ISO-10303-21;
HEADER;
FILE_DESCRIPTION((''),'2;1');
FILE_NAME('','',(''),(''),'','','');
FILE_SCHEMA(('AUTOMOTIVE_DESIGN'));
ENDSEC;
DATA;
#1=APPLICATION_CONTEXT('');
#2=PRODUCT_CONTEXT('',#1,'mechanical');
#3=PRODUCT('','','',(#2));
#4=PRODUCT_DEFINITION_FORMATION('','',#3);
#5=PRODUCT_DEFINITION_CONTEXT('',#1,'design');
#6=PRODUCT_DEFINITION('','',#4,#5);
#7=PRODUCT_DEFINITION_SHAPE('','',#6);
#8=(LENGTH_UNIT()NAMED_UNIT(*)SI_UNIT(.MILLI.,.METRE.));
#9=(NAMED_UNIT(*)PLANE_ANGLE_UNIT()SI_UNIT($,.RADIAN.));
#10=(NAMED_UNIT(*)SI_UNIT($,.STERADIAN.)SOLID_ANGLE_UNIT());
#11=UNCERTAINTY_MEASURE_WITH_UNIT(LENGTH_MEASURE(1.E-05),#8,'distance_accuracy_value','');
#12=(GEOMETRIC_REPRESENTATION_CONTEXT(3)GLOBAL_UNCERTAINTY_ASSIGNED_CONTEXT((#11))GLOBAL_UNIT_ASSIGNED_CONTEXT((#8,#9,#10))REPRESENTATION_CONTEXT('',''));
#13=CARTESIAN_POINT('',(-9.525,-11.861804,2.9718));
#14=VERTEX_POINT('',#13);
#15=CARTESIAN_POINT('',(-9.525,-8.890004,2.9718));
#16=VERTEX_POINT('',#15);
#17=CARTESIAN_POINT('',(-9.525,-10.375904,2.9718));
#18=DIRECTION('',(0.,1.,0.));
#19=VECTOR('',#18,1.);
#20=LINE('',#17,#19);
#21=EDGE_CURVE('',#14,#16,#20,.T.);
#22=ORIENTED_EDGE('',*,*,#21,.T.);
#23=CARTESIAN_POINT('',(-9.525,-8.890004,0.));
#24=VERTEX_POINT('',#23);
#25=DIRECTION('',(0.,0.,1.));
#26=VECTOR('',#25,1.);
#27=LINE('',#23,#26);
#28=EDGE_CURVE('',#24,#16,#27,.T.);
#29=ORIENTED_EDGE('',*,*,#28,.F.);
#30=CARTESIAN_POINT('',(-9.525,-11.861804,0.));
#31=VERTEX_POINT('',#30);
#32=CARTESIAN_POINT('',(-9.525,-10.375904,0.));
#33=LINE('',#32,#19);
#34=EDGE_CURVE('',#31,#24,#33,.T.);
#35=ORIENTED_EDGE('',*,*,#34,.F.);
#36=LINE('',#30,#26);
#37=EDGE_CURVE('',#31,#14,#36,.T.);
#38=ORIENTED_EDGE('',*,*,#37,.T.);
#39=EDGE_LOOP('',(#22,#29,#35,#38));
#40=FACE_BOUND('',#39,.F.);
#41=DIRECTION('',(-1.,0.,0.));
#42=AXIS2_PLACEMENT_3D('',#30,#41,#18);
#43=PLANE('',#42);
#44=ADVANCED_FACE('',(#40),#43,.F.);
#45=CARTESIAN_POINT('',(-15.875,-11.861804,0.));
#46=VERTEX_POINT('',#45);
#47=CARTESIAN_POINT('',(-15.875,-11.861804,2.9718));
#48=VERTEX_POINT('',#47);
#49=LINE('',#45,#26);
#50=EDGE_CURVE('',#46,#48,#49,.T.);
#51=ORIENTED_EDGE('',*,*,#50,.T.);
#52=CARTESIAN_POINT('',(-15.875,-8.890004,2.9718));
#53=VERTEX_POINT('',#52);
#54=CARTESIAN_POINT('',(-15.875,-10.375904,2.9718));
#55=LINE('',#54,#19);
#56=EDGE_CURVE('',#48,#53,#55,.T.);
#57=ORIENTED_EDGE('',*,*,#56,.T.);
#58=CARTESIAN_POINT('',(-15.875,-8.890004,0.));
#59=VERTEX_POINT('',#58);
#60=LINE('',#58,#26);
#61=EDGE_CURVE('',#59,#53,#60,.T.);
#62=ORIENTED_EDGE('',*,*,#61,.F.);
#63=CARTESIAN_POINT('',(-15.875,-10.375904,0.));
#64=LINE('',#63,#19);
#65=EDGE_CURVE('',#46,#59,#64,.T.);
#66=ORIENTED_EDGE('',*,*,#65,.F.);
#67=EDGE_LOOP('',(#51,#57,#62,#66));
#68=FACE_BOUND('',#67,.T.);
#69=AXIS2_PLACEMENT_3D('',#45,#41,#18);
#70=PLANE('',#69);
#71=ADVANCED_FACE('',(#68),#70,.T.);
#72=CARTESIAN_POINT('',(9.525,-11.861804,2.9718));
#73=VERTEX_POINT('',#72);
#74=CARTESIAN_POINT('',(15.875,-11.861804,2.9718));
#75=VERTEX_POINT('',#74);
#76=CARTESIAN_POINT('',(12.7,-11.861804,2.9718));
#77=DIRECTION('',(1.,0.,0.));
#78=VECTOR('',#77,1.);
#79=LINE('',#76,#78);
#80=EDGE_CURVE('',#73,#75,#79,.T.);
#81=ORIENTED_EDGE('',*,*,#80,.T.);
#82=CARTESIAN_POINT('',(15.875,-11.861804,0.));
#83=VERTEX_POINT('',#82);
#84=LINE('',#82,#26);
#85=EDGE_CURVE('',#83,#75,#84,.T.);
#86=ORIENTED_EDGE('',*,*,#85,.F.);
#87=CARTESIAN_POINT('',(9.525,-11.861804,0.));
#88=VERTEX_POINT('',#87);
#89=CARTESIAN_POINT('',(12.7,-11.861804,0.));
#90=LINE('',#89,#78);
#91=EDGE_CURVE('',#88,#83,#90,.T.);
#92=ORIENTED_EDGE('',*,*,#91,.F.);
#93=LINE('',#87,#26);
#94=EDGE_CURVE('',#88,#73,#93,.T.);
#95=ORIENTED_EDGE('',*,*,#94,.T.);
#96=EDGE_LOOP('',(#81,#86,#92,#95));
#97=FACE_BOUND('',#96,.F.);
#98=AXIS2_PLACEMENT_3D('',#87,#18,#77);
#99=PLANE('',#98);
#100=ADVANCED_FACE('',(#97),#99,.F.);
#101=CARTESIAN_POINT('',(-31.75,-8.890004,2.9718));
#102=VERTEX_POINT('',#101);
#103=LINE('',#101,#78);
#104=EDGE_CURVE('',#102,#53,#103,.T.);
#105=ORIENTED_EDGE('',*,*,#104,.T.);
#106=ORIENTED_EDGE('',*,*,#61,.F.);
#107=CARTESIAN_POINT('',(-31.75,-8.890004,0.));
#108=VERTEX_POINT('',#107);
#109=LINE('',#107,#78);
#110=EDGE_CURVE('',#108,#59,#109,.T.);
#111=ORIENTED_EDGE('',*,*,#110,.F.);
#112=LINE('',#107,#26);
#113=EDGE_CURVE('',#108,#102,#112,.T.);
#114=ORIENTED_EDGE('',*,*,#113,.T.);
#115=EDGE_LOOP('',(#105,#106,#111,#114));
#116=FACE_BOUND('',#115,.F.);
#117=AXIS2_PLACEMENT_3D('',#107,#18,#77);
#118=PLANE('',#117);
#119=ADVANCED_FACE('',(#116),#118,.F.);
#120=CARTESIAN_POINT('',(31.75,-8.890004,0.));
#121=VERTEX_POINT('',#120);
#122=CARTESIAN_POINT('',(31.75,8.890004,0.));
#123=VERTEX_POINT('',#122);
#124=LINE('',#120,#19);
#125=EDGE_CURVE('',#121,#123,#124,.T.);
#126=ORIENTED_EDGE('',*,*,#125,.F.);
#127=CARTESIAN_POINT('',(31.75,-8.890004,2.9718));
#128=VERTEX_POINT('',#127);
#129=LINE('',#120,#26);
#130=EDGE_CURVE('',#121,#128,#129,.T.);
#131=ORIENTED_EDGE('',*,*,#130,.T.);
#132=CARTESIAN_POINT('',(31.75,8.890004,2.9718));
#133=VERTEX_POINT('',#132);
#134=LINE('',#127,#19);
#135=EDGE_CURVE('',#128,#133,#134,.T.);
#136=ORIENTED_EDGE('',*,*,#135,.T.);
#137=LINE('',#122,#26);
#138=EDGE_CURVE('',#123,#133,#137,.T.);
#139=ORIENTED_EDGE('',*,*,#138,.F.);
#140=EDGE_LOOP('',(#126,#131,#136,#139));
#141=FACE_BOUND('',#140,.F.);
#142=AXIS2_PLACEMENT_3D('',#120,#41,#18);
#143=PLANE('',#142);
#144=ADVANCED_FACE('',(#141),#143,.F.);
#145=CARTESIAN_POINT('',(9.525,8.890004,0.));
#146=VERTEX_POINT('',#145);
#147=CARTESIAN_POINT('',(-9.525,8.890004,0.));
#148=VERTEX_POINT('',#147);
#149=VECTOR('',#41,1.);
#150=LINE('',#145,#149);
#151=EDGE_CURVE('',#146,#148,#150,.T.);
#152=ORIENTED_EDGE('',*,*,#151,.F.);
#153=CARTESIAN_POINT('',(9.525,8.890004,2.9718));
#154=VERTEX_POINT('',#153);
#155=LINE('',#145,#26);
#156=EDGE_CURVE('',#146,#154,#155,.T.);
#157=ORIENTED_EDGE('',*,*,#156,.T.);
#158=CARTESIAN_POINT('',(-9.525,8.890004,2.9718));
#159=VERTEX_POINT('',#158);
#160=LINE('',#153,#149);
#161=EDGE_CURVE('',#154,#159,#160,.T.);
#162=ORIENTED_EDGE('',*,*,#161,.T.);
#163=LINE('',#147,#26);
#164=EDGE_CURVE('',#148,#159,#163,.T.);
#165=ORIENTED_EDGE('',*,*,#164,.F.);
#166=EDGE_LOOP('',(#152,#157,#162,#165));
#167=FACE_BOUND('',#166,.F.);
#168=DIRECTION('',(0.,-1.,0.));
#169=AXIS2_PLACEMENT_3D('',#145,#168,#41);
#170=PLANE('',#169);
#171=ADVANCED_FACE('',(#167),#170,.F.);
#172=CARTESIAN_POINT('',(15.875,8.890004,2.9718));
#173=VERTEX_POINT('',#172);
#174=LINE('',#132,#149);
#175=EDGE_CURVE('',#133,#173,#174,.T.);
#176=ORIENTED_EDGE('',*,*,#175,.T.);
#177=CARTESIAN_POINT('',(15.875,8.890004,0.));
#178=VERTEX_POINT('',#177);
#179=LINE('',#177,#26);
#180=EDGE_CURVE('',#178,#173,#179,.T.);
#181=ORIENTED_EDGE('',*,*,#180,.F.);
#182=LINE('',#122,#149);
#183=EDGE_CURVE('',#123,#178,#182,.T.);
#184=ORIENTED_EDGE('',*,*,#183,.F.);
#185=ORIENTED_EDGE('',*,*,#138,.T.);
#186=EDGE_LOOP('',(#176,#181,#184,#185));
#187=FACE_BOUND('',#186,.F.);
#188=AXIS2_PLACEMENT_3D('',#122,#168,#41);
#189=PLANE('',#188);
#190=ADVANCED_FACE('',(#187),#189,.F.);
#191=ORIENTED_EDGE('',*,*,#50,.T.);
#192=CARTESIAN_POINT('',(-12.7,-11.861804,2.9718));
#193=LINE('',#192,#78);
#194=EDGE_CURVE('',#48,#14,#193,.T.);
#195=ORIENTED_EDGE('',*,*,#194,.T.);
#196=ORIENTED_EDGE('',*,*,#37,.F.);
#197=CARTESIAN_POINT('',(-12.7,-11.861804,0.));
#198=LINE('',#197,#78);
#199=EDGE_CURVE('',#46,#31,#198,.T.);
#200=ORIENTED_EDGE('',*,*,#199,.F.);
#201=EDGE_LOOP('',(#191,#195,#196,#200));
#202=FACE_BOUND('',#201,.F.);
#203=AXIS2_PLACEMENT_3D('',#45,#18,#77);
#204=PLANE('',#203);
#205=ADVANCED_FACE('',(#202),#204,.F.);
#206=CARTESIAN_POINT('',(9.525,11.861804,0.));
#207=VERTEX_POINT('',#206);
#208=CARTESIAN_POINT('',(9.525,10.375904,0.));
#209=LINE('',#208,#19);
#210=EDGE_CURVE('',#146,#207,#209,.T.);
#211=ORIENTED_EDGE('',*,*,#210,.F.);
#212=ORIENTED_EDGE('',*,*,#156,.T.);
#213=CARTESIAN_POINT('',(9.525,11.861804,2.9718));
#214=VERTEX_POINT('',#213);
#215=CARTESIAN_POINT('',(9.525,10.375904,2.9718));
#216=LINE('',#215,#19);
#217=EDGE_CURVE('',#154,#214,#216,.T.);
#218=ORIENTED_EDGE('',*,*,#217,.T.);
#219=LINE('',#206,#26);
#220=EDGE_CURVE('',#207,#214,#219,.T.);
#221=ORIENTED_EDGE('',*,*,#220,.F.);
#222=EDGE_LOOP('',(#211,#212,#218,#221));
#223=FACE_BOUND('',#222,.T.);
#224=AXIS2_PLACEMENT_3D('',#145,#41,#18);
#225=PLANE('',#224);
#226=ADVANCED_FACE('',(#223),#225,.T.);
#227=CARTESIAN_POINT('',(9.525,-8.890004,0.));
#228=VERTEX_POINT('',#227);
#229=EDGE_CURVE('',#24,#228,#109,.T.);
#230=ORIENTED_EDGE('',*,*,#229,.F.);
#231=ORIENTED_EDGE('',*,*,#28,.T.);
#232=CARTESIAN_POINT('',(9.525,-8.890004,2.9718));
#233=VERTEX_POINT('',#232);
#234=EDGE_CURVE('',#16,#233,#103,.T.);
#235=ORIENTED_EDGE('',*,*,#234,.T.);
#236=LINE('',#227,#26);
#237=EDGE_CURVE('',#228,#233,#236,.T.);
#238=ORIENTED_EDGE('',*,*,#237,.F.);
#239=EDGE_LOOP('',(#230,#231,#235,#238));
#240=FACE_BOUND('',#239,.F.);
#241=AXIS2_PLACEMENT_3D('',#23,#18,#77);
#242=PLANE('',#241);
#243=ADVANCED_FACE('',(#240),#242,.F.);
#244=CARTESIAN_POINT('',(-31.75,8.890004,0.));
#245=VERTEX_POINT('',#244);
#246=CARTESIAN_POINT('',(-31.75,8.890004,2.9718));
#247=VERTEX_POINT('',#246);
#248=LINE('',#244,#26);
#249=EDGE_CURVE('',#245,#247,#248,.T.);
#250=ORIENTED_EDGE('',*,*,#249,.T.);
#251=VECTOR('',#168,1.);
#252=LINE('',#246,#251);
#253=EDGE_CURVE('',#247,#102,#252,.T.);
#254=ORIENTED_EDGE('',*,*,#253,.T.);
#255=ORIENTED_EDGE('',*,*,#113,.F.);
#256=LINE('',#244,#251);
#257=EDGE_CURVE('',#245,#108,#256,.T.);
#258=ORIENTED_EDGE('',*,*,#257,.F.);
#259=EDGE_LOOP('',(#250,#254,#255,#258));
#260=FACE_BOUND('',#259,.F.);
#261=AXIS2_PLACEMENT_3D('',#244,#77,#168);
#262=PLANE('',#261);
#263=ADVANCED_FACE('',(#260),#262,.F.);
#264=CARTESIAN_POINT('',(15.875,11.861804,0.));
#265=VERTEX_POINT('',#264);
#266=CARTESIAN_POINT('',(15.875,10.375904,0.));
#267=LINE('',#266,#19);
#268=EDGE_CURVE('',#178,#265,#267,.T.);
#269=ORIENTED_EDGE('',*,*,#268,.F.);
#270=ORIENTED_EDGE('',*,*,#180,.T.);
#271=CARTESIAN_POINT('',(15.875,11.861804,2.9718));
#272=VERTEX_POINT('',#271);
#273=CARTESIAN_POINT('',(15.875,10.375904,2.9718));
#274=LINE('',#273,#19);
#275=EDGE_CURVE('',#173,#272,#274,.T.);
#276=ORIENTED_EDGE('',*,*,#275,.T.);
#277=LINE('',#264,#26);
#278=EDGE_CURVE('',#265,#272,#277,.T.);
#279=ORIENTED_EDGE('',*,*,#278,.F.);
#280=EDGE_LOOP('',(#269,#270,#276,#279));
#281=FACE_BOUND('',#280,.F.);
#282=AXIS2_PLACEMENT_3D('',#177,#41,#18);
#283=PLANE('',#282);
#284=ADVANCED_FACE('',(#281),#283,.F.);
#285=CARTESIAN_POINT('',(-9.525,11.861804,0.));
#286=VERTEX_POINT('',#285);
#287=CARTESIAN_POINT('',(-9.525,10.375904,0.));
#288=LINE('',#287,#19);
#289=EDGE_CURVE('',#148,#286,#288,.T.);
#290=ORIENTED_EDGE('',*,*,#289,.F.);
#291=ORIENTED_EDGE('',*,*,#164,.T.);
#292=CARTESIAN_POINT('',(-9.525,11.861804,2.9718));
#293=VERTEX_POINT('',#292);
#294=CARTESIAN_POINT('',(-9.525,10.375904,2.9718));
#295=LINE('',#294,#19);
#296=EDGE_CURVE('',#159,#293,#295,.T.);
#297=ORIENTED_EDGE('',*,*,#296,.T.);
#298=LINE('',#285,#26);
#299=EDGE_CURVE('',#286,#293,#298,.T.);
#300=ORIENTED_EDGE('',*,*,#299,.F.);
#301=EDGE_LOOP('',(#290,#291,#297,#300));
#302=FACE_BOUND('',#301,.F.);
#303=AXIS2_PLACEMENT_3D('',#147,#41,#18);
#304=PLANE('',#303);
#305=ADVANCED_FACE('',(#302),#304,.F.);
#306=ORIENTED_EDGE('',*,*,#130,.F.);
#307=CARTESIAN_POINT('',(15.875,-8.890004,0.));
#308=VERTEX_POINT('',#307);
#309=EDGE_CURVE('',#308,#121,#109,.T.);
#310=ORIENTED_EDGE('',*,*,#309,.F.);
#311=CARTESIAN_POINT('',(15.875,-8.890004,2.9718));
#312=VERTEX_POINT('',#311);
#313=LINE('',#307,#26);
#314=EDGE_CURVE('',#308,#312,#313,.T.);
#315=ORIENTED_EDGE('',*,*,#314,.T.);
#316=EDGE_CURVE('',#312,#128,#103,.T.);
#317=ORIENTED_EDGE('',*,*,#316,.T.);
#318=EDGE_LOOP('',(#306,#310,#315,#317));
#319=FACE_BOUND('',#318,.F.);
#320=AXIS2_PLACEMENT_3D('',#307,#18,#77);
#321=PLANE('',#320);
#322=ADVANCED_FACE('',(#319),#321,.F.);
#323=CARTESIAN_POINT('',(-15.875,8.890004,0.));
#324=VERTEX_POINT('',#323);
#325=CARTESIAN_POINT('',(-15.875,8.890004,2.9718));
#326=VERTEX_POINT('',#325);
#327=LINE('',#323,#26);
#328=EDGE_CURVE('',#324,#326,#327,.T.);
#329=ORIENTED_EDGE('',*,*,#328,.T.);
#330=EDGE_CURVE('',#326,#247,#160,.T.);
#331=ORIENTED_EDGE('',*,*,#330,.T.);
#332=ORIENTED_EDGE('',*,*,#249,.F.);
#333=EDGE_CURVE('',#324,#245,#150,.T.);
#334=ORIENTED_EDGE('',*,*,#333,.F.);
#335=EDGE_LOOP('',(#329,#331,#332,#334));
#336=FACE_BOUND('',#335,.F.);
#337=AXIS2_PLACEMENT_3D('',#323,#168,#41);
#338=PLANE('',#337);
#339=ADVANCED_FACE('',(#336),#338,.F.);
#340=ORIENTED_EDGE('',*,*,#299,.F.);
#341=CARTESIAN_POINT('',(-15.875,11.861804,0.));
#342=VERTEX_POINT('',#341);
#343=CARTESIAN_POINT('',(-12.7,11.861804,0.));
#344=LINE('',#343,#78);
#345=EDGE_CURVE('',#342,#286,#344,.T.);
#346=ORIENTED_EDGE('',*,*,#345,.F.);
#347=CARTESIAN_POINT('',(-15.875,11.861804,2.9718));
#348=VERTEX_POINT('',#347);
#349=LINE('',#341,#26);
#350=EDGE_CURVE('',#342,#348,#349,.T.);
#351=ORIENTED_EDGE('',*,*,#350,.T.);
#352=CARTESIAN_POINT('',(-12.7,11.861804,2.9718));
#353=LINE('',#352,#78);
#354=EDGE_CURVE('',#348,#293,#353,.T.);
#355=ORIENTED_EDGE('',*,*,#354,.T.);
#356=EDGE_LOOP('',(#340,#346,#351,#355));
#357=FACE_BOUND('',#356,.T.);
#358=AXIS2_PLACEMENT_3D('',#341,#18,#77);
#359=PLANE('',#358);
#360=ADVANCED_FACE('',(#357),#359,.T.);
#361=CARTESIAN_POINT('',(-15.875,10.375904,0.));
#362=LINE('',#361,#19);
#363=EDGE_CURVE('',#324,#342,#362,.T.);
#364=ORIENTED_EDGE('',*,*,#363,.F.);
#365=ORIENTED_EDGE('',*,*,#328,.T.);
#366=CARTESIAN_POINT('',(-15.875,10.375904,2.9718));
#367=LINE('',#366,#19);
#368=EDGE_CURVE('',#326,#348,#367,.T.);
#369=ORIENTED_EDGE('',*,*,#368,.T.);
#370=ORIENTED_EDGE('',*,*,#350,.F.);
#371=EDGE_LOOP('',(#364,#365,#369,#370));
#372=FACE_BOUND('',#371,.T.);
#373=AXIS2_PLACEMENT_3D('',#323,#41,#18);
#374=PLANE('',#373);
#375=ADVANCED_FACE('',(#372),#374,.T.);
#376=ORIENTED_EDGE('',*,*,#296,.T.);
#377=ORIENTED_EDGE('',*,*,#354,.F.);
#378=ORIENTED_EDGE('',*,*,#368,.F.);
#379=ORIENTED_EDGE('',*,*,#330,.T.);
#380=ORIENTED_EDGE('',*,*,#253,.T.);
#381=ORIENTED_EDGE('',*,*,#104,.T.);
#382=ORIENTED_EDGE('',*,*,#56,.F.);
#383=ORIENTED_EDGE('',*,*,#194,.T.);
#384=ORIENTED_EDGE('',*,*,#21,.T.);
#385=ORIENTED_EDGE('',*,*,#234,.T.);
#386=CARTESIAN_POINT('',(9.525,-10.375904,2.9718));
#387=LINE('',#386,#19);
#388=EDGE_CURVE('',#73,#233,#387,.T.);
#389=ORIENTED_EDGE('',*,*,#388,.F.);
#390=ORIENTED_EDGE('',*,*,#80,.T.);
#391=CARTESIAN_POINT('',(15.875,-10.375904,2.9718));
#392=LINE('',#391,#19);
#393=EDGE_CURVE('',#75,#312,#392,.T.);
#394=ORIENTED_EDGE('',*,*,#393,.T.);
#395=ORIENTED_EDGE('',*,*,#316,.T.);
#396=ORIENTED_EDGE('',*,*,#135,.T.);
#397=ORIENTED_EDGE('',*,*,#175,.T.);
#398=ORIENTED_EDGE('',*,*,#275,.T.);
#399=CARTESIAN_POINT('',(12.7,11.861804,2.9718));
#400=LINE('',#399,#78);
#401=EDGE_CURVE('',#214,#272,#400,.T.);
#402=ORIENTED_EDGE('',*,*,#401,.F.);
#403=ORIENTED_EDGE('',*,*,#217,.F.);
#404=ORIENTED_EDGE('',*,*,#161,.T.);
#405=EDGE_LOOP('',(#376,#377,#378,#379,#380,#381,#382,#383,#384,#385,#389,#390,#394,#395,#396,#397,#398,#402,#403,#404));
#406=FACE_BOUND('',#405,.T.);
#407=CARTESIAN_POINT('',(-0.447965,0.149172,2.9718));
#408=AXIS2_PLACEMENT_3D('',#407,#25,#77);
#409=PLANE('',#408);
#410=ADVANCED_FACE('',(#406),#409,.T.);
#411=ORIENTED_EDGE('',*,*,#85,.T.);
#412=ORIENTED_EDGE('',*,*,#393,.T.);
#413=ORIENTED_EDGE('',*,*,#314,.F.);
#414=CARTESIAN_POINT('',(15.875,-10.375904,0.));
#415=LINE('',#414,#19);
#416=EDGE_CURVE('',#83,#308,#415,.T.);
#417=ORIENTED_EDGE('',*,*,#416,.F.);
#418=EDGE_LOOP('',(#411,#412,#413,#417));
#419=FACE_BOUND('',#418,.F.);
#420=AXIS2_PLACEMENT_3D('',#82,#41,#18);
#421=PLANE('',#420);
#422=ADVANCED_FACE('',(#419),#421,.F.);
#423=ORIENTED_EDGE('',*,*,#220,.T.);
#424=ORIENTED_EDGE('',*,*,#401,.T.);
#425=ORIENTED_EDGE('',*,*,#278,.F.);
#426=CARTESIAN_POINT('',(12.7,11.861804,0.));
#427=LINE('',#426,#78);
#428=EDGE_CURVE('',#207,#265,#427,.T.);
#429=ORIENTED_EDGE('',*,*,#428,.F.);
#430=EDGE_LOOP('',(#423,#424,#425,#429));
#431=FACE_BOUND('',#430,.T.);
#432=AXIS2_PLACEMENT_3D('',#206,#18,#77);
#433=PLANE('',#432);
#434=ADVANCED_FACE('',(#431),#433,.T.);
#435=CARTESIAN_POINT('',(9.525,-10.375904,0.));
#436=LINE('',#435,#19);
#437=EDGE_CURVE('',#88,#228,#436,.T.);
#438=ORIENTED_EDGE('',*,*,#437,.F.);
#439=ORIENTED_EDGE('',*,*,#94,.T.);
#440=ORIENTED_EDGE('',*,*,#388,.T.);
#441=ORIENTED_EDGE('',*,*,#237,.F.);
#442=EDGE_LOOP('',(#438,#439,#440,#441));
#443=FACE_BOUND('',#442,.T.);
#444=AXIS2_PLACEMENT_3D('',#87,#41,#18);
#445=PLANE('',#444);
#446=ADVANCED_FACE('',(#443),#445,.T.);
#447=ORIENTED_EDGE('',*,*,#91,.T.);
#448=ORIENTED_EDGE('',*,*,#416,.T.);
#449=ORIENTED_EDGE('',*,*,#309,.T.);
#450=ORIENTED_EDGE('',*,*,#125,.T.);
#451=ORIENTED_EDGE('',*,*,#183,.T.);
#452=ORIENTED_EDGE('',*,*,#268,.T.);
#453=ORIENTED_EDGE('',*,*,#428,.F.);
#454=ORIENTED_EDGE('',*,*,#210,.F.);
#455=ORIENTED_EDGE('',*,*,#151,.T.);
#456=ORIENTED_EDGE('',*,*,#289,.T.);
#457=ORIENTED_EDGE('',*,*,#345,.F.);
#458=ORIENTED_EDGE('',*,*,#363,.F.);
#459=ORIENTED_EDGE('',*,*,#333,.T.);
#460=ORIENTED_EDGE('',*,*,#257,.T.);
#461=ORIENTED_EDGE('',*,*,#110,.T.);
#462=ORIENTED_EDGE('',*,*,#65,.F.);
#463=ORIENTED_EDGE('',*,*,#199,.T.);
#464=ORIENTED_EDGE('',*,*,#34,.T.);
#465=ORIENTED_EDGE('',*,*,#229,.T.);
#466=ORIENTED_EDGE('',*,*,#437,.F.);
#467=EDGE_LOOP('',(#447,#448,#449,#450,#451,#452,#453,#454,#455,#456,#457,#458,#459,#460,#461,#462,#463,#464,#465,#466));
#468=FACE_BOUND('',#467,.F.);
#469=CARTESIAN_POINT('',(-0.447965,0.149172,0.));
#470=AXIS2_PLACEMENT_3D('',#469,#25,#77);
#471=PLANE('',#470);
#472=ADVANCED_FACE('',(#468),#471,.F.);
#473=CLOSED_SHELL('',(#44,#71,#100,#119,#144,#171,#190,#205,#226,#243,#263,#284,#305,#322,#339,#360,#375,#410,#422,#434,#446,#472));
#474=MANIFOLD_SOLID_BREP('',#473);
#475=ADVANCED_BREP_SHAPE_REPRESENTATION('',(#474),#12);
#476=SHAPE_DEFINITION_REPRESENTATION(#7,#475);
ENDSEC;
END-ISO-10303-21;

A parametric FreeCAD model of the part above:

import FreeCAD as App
import Part
import Sketcher

V = App.Vector
Q = App.Units.Quantity


def add_polygon(sketch, points):
    """Adds a closed chain of lines whose ends are joined by coincident constraints."""
    first, n = sketch.GeometryCount, len(points)
    for a, b in zip(points, points[1:] + points[:1]):
        sketch.addGeometry(Part.LineSegment(App.Vector(*a, 0), App.Vector(*b, 0)), False)
    for i in range(n):
        sketch.addConstraint(Sketcher.Constraint("Coincident", first + i, 2, first + (i + 1) % n, 1))

doc = App.newDocument("Part")
body = doc.addObject("PartDesign::Body", "Body")

sketch1 = body.newObject("Sketcher::SketchObject", "Sketch")
sketch1.AttachmentSupport = (doc.getObject("XY_Plane"), [""])
sketch1.MapMode = "FlatFace"
add_polygon(sketch1, [(31.8, -8.9), (31.8, 8.9), (15.9, 8.9), (15.9, 11.9), (9.5, 11.9), (9.5, 8.9), (-9.5, 8.9), (-9.5, 11.9), (-15.9, 11.9), (-15.9, 8.9), (-31.8, 8.9), (-31.8, -8.9), (-15.9, -8.9), (-15.9, -11.9), (-9.5, -11.9), (-9.5, -8.9), (9.5, -8.9), (9.5, -11.9), (15.9, -11.9), (15.9, -8.9)])
sketch1.addConstraint([
    Sketcher.Constraint("Vertical", 0),
    Sketcher.Constraint("Horizontal", 1),
    Sketcher.Constraint("Vertical", 2),
    Sketcher.Constraint("Horizontal", 3),
    Sketcher.Constraint("Vertical", 4),
    Sketcher.Constraint("Horizontal", 5),
    Sketcher.Constraint("Vertical", 6),
    Sketcher.Constraint("Horizontal", 7),
    Sketcher.Constraint("Vertical", 8),
    Sketcher.Constraint("Horizontal", 9),
    Sketcher.Constraint("Vertical", 10),
    Sketcher.Constraint("Horizontal", 11),
    Sketcher.Constraint("Vertical", 12),
    Sketcher.Constraint("Horizontal", 13),
    Sketcher.Constraint("Vertical", 14),
    Sketcher.Constraint("Horizontal", 15),
    Sketcher.Constraint("Vertical", 16),
    Sketcher.Constraint("Horizontal", 17),
    Sketcher.Constraint("Vertical", 18),
    Sketcher.Constraint("Horizontal", 19),
    Sketcher.Constraint("Symmetric", 0, 2, 10, 2, -1, 1),
    Sketcher.Constraint("Symmetric", 2, 2, 12, 2, -1, 1),
    Sketcher.Constraint("Symmetric", 4, 2, 14, 2, -1, 1),
    Sketcher.Constraint("Symmetric", 6, 2, 16, 2, -1, 1),
    Sketcher.Constraint("Symmetric", 8, 2, 18, 2, -1, 1),
    Sketcher.Constraint("Symmetric", 3, 2, 6, 2, -2),
    Sketcher.Constraint("Symmetric", 1, 2, 8, 2, -2),
    Sketcher.Constraint("Horizontal", 1, 2, 4, 2),
    Sketcher.Constraint("DistanceX", 5, 2, 1, 2, Q("1 in")),
    Sketcher.Constraint("DistanceX", 3, 2, 3, 1, Q("0.25 in")),
    Sketcher.Constraint("DistanceX", 1, 2, 1, 1, Q("0.625 in")),
    Sketcher.Constraint("DistanceY", 2, 1, 2, 2, Q("0.117 in")),
    Sketcher.Constraint("DistanceY", -1, 1, 0, 2, Q("0.3500002 in")),
])
pad1 = body.newObject("PartDesign::Pad", "Pad")
pad1.Profile = sketch1
pad1.Length = Q("0.117 in")

doc.recompute()
